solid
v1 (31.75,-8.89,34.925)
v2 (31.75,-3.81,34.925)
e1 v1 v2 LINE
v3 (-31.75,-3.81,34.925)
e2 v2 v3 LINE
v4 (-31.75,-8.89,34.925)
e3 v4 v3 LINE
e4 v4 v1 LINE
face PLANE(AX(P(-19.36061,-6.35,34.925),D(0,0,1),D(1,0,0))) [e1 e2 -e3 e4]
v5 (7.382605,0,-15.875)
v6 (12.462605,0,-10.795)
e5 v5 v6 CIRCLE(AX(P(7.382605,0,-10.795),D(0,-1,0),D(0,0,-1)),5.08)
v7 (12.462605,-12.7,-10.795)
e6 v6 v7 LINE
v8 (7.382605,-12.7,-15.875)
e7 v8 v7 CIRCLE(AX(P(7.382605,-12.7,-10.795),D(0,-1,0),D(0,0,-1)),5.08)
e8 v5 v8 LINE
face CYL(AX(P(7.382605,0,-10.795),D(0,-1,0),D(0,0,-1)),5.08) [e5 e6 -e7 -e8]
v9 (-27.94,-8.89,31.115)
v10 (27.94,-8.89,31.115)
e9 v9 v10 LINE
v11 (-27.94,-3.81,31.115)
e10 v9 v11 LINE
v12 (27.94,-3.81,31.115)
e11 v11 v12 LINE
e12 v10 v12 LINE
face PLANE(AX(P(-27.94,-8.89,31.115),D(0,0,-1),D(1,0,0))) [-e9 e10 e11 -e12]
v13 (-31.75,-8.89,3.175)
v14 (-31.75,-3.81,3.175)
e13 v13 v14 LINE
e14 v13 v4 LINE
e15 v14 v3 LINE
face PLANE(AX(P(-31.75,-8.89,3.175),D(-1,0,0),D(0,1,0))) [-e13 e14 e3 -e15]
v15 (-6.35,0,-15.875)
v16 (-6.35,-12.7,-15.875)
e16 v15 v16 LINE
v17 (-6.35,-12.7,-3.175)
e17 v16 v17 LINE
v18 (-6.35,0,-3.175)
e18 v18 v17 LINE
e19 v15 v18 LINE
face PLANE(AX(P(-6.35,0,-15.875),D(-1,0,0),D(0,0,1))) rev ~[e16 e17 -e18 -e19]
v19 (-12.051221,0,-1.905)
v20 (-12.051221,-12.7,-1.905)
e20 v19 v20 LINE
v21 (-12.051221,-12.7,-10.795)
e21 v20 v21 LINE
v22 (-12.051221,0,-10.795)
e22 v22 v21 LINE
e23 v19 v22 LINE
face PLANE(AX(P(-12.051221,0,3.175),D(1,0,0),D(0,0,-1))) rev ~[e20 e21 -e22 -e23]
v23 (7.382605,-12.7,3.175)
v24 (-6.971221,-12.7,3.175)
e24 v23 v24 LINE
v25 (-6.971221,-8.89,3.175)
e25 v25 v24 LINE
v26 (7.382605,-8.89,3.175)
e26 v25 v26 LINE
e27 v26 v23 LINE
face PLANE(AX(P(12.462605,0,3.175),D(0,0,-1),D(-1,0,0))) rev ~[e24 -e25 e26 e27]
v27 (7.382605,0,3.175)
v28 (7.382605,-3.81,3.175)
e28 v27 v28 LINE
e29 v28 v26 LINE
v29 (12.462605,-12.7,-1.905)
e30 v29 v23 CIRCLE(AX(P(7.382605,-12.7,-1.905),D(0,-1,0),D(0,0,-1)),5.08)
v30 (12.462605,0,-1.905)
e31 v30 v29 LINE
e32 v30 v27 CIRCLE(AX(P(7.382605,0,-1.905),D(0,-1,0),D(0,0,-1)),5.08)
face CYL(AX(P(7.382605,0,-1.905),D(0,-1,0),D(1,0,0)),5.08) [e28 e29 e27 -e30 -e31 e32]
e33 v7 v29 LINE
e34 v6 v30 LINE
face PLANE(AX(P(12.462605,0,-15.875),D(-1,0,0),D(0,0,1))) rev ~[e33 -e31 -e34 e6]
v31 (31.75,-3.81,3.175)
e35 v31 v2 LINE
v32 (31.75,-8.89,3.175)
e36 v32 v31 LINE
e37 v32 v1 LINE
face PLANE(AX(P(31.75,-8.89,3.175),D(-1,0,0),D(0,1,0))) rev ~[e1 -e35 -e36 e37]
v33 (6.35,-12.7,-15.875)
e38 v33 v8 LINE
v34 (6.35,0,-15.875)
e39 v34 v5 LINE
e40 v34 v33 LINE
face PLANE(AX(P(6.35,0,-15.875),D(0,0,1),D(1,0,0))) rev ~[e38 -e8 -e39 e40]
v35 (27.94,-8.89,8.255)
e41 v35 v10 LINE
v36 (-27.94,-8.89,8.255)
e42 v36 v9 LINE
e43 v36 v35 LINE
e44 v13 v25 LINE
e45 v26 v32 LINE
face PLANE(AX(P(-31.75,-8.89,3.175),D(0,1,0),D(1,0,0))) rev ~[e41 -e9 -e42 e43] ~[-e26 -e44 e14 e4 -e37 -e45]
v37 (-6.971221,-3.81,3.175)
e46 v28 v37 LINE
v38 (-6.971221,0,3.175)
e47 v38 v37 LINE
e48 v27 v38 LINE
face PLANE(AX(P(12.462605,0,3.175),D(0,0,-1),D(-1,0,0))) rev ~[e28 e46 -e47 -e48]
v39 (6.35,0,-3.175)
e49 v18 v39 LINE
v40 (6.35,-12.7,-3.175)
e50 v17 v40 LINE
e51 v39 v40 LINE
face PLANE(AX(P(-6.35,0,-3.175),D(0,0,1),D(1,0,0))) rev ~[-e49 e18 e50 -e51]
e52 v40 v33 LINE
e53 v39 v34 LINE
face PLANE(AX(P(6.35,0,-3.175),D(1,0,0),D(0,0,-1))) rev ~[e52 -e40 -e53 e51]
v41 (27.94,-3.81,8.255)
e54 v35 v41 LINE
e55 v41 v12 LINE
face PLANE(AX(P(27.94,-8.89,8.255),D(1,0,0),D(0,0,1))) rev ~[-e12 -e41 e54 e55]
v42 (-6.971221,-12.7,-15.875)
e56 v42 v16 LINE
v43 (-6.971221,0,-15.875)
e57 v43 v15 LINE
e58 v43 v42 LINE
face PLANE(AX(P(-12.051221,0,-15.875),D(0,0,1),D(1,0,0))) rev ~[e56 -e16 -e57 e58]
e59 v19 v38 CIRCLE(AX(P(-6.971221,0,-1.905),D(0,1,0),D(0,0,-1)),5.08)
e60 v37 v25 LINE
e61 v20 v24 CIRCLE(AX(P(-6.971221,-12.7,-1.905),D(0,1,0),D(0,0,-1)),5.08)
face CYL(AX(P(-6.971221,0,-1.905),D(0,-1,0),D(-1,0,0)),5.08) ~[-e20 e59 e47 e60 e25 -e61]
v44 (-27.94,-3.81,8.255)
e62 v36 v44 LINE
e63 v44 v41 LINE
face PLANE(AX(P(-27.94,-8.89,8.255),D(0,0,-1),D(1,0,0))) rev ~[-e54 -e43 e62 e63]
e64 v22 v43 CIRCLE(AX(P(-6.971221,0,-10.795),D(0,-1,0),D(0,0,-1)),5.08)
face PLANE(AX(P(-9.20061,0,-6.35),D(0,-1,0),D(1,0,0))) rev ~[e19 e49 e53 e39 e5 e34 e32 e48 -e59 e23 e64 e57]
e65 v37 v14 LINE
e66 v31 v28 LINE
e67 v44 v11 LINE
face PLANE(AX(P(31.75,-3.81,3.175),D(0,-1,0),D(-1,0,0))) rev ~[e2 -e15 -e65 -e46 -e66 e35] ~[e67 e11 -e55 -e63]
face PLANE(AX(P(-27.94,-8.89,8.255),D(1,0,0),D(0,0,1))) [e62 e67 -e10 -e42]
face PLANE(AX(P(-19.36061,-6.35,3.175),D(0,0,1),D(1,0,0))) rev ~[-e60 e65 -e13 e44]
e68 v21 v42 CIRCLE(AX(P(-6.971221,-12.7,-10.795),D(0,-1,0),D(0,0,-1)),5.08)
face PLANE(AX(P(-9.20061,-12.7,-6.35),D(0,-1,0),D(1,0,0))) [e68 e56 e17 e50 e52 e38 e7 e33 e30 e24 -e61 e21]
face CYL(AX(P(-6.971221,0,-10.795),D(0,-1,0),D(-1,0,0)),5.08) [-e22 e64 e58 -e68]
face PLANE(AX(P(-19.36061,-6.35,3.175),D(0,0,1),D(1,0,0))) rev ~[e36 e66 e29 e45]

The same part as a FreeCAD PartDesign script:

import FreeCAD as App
import Part
import Sketcher
Q = App.Units.Quantity


def edges_at(feature, points):
    """Names of the edges that pass closest to the given points."""
    edges = feature.Shape.Edges
    near = lambda p: min(range(len(edges)), key=lambda i: edges[i].distToShape(Part.Vertex(*p))[0])
    return sorted({f"Edge{near(p) + 1}" for p in points})

doc = App.newDocument("Part")
params = doc.addObject("Spreadsheet::Sheet", "Params")
for row, (alias, value) in enumerate([
    ("sketch1_width", "0.5 in"),
    ("sketch1_height", "0.75 in"),
    ("pad1_length", "0.5 in"),
    ("fillet_radius", "0.2 in"),
    ("sketch2_width", "2.5 in"),
    ("sketch2_height", "0.2 in"),
    ("pad2_length", "1.25 in"),
    ("sketch3_width", "2.2 in"),
    ("sketch3_height", "0.9 in"),
    ("pocket1_length", "1 in"),
], start=1):
    params.set(f"A{row}", alias)
    params.set(f"B{row}", "=" + value)
    params.setAlias(f"B{row}", alias)

body = doc.addObject("PartDesign::Body", "Body")

# Sketch on XZ plane
sketch1 = body.newObject("Sketcher::SketchObject", "Sketch")
sketch1.AttachmentSupport = (doc.getObject("XZ_Plane"), [""])
sketch1.MapMode = "FlatFace"
sketch1.addGeometry(Part.LineSegment(App.Vector(-12.051221, 3.175, 0), App.Vector(-12.051221, -15.875, 0)), False)
sketch1.addGeometry(Part.LineSegment(App.Vector(-12.051221, -15.875, 0), App.Vector(-6.35, -15.875, 0)), False)
sketch1.addGeometry(Part.LineSegment(App.Vector(-6.35, -15.875, 0), App.Vector(-6.35, -3.175, 0)), False)
sketch1.addGeometry(Part.LineSegment(App.Vector(-6.35, -3.175, 0), App.Vector(6.35, -3.175, 0)), False)
sketch1.addGeometry(Part.LineSegment(App.Vector(6.35, -3.175, 0), App.Vector(6.35, -15.875, 0)), False)
sketch1.addGeometry(Part.LineSegment(App.Vector(6.35, -15.875, 0), App.Vector(12.462605, -15.875, 0)), False)
sketch1.addGeometry(Part.LineSegment(App.Vector(12.462605, -15.875, 0), App.Vector(12.462605, 3.175, 0)), False)
sketch1.addGeometry(Part.LineSegment(App.Vector(12.462605, 3.175, 0), App.Vector(-12.051221, 3.175, 0)), False)
sketch1.addConstraint(Sketcher.Constraint("Coincident", 0, 2, 1, 1))
sketch1.addConstraint(Sketcher.Constraint("Coincident", 1, 2, 2, 1))
sketch1.addConstraint(Sketcher.Constraint("Coincident", 2, 2, 3, 1))
sketch1.addConstraint(Sketcher.Constraint("Coincident", 3, 2, 4, 1))
sketch1.addConstraint(Sketcher.Constraint("Coincident", 4, 2, 5, 1))
sketch1.addConstraint(Sketcher.Constraint("Coincident", 5, 2, 6, 1))
sketch1.addConstraint(Sketcher.Constraint("Coincident", 6, 2, 7, 1))
sketch1.addConstraint(Sketcher.Constraint("Coincident", 7, 2, 0, 1))
sketch1.addConstraint(Sketcher.Constraint("Vertical", 0))
sketch1.addConstraint(Sketcher.Constraint("Horizontal", 1))
sketch1.addConstraint(Sketcher.Constraint("Vertical", 2))
sketch1.addConstraint(Sketcher.Constraint("Horizontal", 3))
sketch1.addConstraint(Sketcher.Constraint("Vertical", 4))
sketch1.addConstraint(Sketcher.Constraint("Horizontal", 5))
sketch1.addConstraint(Sketcher.Constraint("Vertical", 6))
sketch1.addConstraint(Sketcher.Constraint("Horizontal", 7))
sketch1.addConstraint(Sketcher.Constraint("Symmetric", 1, 2, 4, 2, -2))
sketch1.addConstraint(Sketcher.Constraint("Equal", 3, 2))
sketch1.addConstraint(Sketcher.Constraint("DistanceX", 3, 1, 3, 2, Q("0.5 in")))
sketch1.addConstraint(Sketcher.Constraint("DistanceY", 0, 2, 0, 1, Q("0.75 in")))
sketch1.addConstraint(Sketcher.Constraint("DistanceY", 0, 2, -1, 1, Q("0.625 in")))
sketch1.addConstraint(Sketcher.Constraint("DistanceX", 1, 1, 1, 2, 5.701221))
sketch1.addConstraint(Sketcher.Constraint("DistanceX", 5, 1, 5, 2, 6.112605))
sketch1.setExpression("Constraints[18]", "Params.sketch1_width")
sketch1.setExpression("Constraints[19]", "Params.sketch1_height")
pad1 = body.newObject("PartDesign::Pad", "Pad")
pad1.Profile = sketch1
pad1.setExpression("Length", "Params.pad1_length")
doc.recompute()

fillet = body.newObject("PartDesign::Fillet", "Fillet")
fillet.Base = (pad1, edges_at(pad1, [
    (-12.051, -6.35, 3.175),
    (12.463, -6.35, 3.175),
    (-12.051, -6.35, -15.875),
    (12.463, -6.35, -15.875),
]))
fillet.setExpression("Radius", "Params.fillet_radius")

# Sketch on XY plane
sketch2 = body.newObject("Sketcher::SketchObject", "Sketch001")
sketch2.AttachmentSupport = (doc.getObject("XY_Plane"), [""])
sketch2.MapMode = "FlatFace"
sketch2.AttachmentOffset = App.Placement(App.Vector(0, 0, 0.125 * 25.4), App.Rotation())
sketch2.addGeometry(Part.LineSegment(App.Vector(-31.75, -3.81, 0), App.Vector(-31.75, -8.89, 0)), False)
sketch2.addGeometry(Part.LineSegment(App.Vector(-31.75, -8.89, 0), App.Vector(31.75, -8.89, 0)), False)
sketch2.addGeometry(Part.LineSegment(App.Vector(31.75, -8.89, 0), App.Vector(31.75, -3.81, 0)), False)
sketch2.addGeometry(Part.LineSegment(App.Vector(31.75, -3.81, 0), App.Vector(-31.75, -3.81, 0)), False)
sketch2.addConstraint(Sketcher.Constraint("Coincident", 0, 2, 1, 1))
sketch2.addConstraint(Sketcher.Constraint("Coincident", 1, 2, 2, 1))
sketch2.addConstraint(Sketcher.Constraint("Coincident", 2, 2, 3, 1))
sketch2.addConstraint(Sketcher.Constraint("Coincident", 3, 2, 0, 1))
sketch2.addConstraint(Sketcher.Constraint("Vertical", 0))
sketch2.addConstraint(Sketcher.Constraint("Horizontal", 1))
sketch2.addConstraint(Sketcher.Constraint("Vertical", 2))
sketch2.addConstraint(Sketcher.Constraint("Horizontal", 3))
sketch2.addConstraint(Sketcher.Constraint("DistanceX", 1, 1, 1, 2, Q("2.5 in")))
sketch2.addConstraint(Sketcher.Constraint("DistanceY", 0, 2, 0, 1, Q("0.2 in")))
sketch2.addConstraint(Sketcher.Constraint("DistanceX", 0, 2, -1, 1, Q("1.25 in")))
sketch2.addConstraint(Sketcher.Constraint("DistanceY", 0, 2, -1, 1, Q("0.35 in")))
sketch2.setExpression("Constraints[8]", "Params.sketch2_width")
sketch2.setExpression("Constraints[9]", "Params.sketch2_height")
pad2 = body.newObject("PartDesign::Pad", "Pad001")
pad2.Profile = sketch2
pad2.setExpression("Length", "Params.pad2_length")

# Sketch on XZ plane
sketch3 = body.newObject("Sketcher::SketchObject", "Sketch002")
sketch3.AttachmentSupport = (doc.getObject("XZ_Plane"), [""])
sketch3.MapMode = "FlatFace"
sketch3.AttachmentOffset = App.Placement(App.Vector(0, 0, 0.35 * 25.4), App.Rotation())
sketch3.addGeometry(Part.LineSegment(App.Vector(-27.94, 31.115, 0), App.Vector(-27.94, 8.255, 0)), False)
sketch3.addGeometry(Part.LineSegment(App.Vector(-27.94, 8.255, 0), App.Vector(27.94, 8.255, 0)), False)
sketch3.addGeometry(Part.LineSegment(App.Vector(27.94, 8.255, 0), App.Vector(27.94, 31.115, 0)), False)
sketch3.addGeometry(Part.LineSegment(App.Vector(27.94, 31.115, 0), App.Vector(-27.94, 31.115, 0)), False)
sketch3.addConstraint(Sketcher.Constraint("Coincident", 0, 2, 1, 1))
sketch3.addConstraint(Sketcher.Constraint("Coincident", 1, 2, 2, 1))
sketch3.addConstraint(Sketcher.Constraint("Coincident", 2, 2, 3, 1))
sketch3.addConstraint(Sketcher.Constraint("Coincident", 3, 2, 0, 1))
sketch3.addConstraint(Sketcher.Constraint("Vertical", 0))
sketch3.addConstraint(Sketcher.Constraint("Horizontal", 1))
sketch3.addConstraint(Sketcher.Constraint("Vertical", 2))
sketch3.addConstraint(Sketcher.Constraint("Horizontal", 3))
sketch3.addConstraint(Sketcher.Constraint("DistanceX", 1, 1, 1, 2, Q("2.2 in")))
sketch3.addConstraint(Sketcher.Constraint("DistanceY", 0, 2, 0, 1, Q("0.9 in")))
sketch3.addConstraint(Sketcher.Constraint("DistanceX", 0, 2, -1, 1, Q("1.1 in")))
sketch3.addConstraint(Sketcher.Constraint("DistanceY", -1, 1, 0, 2, Q("0.325 in")))
sketch3.setExpression("Constraints[8]", "Params.sketch3_width")
sketch3.setExpression("Constraints[9]", "Params.sketch3_height")
pocket1 = body.newObject("PartDesign::Pocket", "Pocket")
pocket1.Profile = sketch3
pocket1.setExpression("Length", "Params.pocket1_length")

doc.recompute()
